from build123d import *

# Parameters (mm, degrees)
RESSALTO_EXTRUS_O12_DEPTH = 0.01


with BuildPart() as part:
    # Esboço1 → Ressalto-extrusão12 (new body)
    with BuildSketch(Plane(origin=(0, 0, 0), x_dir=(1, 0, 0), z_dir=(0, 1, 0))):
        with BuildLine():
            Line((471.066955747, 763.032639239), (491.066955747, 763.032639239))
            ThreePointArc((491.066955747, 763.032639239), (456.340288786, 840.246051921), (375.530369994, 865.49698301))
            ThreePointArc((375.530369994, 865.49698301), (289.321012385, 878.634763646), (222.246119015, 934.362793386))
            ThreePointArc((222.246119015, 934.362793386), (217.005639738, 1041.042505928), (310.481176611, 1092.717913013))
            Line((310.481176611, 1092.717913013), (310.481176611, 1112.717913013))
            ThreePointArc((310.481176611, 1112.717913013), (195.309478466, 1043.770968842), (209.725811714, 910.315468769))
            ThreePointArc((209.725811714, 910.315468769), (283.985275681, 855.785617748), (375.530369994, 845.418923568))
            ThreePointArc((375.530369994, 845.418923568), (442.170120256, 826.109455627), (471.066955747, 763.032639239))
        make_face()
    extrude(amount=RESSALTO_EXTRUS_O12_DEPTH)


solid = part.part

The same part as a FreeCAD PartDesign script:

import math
import FreeCAD as App
import Part
import Sketcher
Q = App.Units.Quantity

doc = App.newDocument("Part")
body = doc.addObject("PartDesign::Body", "Body")

# Sketch on XZ plane
sketch1 = body.newObject("Sketcher::SketchObject", "Sketch")
sketch1.AttachmentSupport = (doc.getObject("XZ_Plane"), [""])
sketch1.MapMode = "FlatFace"
sketch1.addGeometry(Part.LineSegment(App.Vector(471.066956, -763.032639, 0), App.Vector(491.066956, -763.032639, 0)), False)
sketch1.addGeometry(Part.ArcOfCircle(Part.Circle(App.Vector(387.863091, -763.032639, 0), App.Vector(0, 0, 1), 103.203865), math.radians(-96.863168), math.radians(0)), False)
sketch1.addGeometry(Part.ArcOfCircle(Part.Circle(App.Vector(356.067427, -1027.20158, 0), App.Vector(0, 0, 1), 162.871676), math.radians(83.136832), math.radians(145.248947)), False)
sketch1.addGeometry(Part.ArcOfCircle(Part.Circle(App.Vector(305.190914, -991.905902, 0), App.Vector(0, 0, 1), 100.950722), math.radians(145.248947), math.radians(273.003927)), False)
sketch1.addGeometry(Part.LineSegment(App.Vector(310.481177, -1092.717913, 0), App.Vector(310.481177, -1112.717913, 0)), False)
sketch1.addGeometry(Part.ArcOfCircle(Part.Circle(App.Vector(306.73915, -988.301593, 0), App.Vector(0, 0, 1), 124.472581), math.radians(141.205239), math.radians(271.722746)), False)
sketch1.addGeometry(Part.ArcOfCircle(Part.Circle(App.Vector(349.217994, -1022.449066, 0), App.Vector(0, 0, 1), 178.974893), math.radians(81.545895), math.radians(141.205239)), False)
sketch1.addGeometry(Part.ArcOfCircle(Part.Circle(App.Vector(387.775623, -763.032639, 0), App.Vector(0, 0, 1), 83.291333), math.radians(-98.454105), math.radians(0)), False)
sketch1.addConstraint(Sketcher.Constraint("Coincident", 0, 2, 1, 2))
sketch1.addConstraint(Sketcher.Constraint("Tangent", 1, 1, 2, 1))
sketch1.addConstraint(Sketcher.Constraint("Tangent", 2, 2, 3, 1))
sketch1.addConstraint(Sketcher.Constraint("Coincident", 3, 2, 4, 1))
sketch1.addConstraint(Sketcher.Constraint("Coincident", 4, 2, 5, 2))
sketch1.addConstraint(Sketcher.Constraint("Tangent", 5, 1, 6, 2))
sketch1.addConstraint(Sketcher.Constraint("Tangent", 6, 1, 7, 1))
sketch1.addConstraint(Sketcher.Constraint("Coincident", 7, 2, 0, 1))
sketch1.addConstraint(Sketcher.Constraint("Horizontal", 0))
sketch1.addConstraint(Sketcher.Constraint("Vertical", 4))
sketch1.addConstraint(Sketcher.Constraint("Horizontal", 1, 3, 7, 3))
sketch1.addConstraint(Sketcher.Constraint("Horizontal", 7, 3, 0, 2))
sketch1.addConstraint(Sketcher.Constraint("Vertical", 1, 1, 6, 1))
sketch1.addConstraint(Sketcher.Constraint("Equal", 0, 4))
sketch1.addConstraint(Sketcher.Constraint("DistanceX", 0, 1, 0, 2, Q("20 mm")))
sketch1.addConstraint(Sketcher.Constraint("Radius", 5, Q("124.472581 mm")))
sketch1.addConstraint(Sketcher.Constraint("Radius", 1, Q("103.203865 mm")))
sketch1.addConstraint(Sketcher.Constraint("Radius", 2, Q("162.871676 mm")))
sketch1.addConstraint(Sketcher.Constraint("Radius", 3, Q("100.950722 mm")))
sketch1.addConstraint(Sketcher.Constraint("Radius", 6, Q("178.974893 mm")))
sketch1.addConstraint(Sketcher.Constraint("Radius", 7, Q("83.291333 mm")))
sketch1.addConstraint(Sketcher.Constraint("DistanceY", 5, 3, 2, 2, Q("53.9388 mm")))
sketch1.addConstraint(Sketcher.Constraint("DistanceX", -1, 1, 1, 3, Q("387.863091 mm")))
sketch1.addConstraint(Sketcher.Constraint("DistanceY", 1, 3, -1, 1, Q("763.032639 mm")))
sketch1.addConstraint(Sketcher.Constraint("DistanceY", 2, 3, -1, 1, Q("1027.20158 mm")))
sketch1.addConstraint(Sketcher.Constraint("DistanceX", -1, 1, 5, 3, Q("306.73915 mm")))
pad1 = body.newObject("PartDesign::Pad", "Pad")
pad1.Profile = sketch1
pad1.Length = 0.01
pad1.Reversed = True

doc.recompute()
